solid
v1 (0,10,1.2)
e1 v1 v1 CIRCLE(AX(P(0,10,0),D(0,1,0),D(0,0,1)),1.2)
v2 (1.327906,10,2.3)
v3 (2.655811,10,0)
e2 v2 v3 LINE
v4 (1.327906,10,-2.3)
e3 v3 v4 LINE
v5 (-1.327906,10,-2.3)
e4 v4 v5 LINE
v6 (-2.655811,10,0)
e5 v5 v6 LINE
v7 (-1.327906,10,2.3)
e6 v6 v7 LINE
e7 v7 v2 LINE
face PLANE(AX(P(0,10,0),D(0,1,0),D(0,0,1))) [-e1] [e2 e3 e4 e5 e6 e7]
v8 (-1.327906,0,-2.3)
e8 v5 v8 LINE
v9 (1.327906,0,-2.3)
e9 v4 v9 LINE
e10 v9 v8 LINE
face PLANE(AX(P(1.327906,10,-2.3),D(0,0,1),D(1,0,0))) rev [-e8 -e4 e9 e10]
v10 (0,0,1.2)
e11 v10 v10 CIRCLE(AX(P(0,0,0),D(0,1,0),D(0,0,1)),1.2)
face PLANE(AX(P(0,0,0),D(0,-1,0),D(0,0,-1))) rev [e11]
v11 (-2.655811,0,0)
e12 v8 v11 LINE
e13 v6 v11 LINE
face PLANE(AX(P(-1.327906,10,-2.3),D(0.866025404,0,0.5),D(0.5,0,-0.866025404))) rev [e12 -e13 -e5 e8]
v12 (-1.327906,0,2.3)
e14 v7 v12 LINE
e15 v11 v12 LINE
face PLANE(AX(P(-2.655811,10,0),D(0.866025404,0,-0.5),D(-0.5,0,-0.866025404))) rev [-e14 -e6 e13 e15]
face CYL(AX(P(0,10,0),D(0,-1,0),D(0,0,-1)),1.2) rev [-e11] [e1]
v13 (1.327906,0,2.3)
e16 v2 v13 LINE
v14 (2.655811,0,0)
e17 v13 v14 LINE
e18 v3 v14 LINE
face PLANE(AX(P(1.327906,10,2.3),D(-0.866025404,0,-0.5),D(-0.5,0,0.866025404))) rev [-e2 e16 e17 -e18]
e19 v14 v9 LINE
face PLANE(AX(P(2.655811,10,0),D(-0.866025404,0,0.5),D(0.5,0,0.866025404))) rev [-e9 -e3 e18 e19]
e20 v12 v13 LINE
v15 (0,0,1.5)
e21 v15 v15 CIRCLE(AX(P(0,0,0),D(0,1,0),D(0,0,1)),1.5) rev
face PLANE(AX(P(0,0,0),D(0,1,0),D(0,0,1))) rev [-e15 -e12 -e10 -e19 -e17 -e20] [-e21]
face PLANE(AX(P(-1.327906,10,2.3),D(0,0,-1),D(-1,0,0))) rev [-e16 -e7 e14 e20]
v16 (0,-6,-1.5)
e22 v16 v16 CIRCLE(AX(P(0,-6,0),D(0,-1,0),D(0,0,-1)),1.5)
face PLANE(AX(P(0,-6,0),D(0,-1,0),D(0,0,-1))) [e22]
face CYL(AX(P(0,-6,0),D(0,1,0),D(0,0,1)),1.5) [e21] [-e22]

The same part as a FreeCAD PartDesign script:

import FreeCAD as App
import Part
import Sketcher
Q = App.Units.Quantity

doc = App.newDocument("Part")
body = doc.addObject("PartDesign::Body", "Body")

# Sketch on XZ plane
sketch1 = body.newObject("Sketcher::SketchObject", "Sketch")
sketch1.AttachmentSupport = (doc.getObject("XZ_Plane"), [""])
sketch1.MapMode = "FlatFace"
sketch1.addGeometry(Part.LineSegment(App.Vector(2.655811, 0, 0), App.Vector(1.327906, -2.3, 0)), False)
sketch1.addGeometry(Part.LineSegment(App.Vector(1.327906, -2.3, 0), App.Vector(-1.327906, -2.3, 0)), False)
sketch1.addGeometry(Part.LineSegment(App.Vector(-1.327906, -2.3, 0), App.Vector(-2.655811, 0, 0)), False)
sketch1.addGeometry(Part.LineSegment(App.Vector(-2.655811, 0, 0), App.Vector(-1.327906, 2.3, 0)), False)
sketch1.addGeometry(Part.LineSegment(App.Vector(-1.327906, 2.3, 0), App.Vector(1.327906, 2.3, 0)), False)
sketch1.addGeometry(Part.LineSegment(App.Vector(1.327906, 2.3, 0), App.Vector(2.655811, 0, 0)), False)
sketch1.addGeometry(Part.Circle(App.Vector(0, 0, 0), App.Vector(0, 0, 1), 1.2), False)
sketch1.addConstraint(Sketcher.Constraint("Coincident", 0, 2, 1, 1))
sketch1.addConstraint(Sketcher.Constraint("Coincident", 1, 2, 2, 1))
sketch1.addConstraint(Sketcher.Constraint("Coincident", 2, 2, 3, 1))
sketch1.addConstraint(Sketcher.Constraint("Coincident", 3, 2, 4, 1))
sketch1.addConstraint(Sketcher.Constraint("Coincident", 4, 2, 5, 1))
sketch1.addConstraint(Sketcher.Constraint("Coincident", 5, 2, 0, 1))
sketch1.addConstraint(Sketcher.Constraint("Horizontal", 1))
sketch1.addConstraint(Sketcher.Constraint("Horizontal", 4))
sketch1.addConstraint(Sketcher.Constraint("Coincident", 6, 3, -1, 1))
sketch1.addConstraint(Sketcher.Constraint("Symmetric", 0, 2, 3, 2, -1, 1))
sketch1.addConstraint(Sketcher.Constraint("Symmetric", 2, 2, 5, 2, -1, 1))
sketch1.addConstraint(Sketcher.Constraint("PointOnObject", 2, 2, -1))
sketch1.addConstraint(Sketcher.Constraint("Parallel", 2, 5))
sketch1.addConstraint(Sketcher.Constraint("Vertical", 1, 2, 3, 2))
sketch1.addConstraint(Sketcher.Constraint("Diameter", 6, Q("2.4 mm")))
sketch1.addConstraint(Sketcher.Constraint("Angle", 0, Q("-120 deg")))
sketch1.addConstraint(Sketcher.Constraint("DistanceY", 0, 2, -1, 1, Q("2.3 mm")))
sketch1.addConstraint(Sketcher.Constraint("DistanceX", 1, 2, 1, 1, Q("2.655811 mm")))
pad1 = body.newObject("PartDesign::Pad", "Pad")
pad1.Profile = sketch1
pad1.Length = 10
pad1.Reversed = True

# Sketch on XZ plane
sketch2 = body.newObject("Sketcher::SketchObject", "Sketch001")
sketch2.AttachmentSupport = (doc.getObject("XZ_Plane"), [""])
sketch2.MapMode = "FlatFace"
sketch2.addGeometry(Part.Circle(App.Vector(0, 0, 0), App.Vector(0, 0, 1), 1.5), False)
sketch2.addConstraint(Sketcher.Constraint("Coincident", 0, 3, -1, 1))
sketch2.addConstraint(Sketcher.Constraint("Diameter", 0, Q("3 mm")))
pad2 = body.newObject("PartDesign::Pad", "Pad001")
pad2.Profile = sketch2
pad2.Length = 6

doc.recompute()
